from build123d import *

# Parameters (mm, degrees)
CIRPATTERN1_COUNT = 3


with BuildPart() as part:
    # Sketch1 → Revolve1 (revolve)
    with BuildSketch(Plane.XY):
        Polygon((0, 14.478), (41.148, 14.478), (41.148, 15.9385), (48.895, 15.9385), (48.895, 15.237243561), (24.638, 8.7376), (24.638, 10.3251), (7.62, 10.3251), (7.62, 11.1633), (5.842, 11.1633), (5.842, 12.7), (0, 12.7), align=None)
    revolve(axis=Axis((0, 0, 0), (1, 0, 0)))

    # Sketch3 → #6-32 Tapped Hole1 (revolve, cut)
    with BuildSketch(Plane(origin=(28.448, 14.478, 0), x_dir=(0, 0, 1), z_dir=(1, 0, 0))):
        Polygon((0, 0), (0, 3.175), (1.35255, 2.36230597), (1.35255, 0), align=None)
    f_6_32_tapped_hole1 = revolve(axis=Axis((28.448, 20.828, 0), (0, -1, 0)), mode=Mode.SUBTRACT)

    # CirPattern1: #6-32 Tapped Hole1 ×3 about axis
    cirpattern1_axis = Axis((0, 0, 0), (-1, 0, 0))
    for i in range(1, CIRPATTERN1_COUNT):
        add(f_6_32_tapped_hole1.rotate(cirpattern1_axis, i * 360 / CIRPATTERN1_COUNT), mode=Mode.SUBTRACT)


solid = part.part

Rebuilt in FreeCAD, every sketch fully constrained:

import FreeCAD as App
import Part
import Sketcher
from FreeCAD import Vector
Q = App.Units.Quantity

doc = App.newDocument("Part")
body = doc.addObject("PartDesign::Body", "Body")

# Sketch on XY plane
sketch1 = doc.addObject("Sketcher::SketchObject", "Sketch")
body.addObject(sketch1)
sketch1.AttachmentSupport = (doc.XY_Plane, [""])
sketch1.MapMode = "FlatFace"
sketch1.addGeometry([
    Part.LineSegment(Vector(41.1, 14.5, 0), Vector(0, 14.5, 0)),  # 0
    Part.LineSegment(Vector(0, 14.5, 0), Vector(0, 12.7, 0)),  # 1
    Part.LineSegment(Vector(0, 12.7, 0), Vector(5.8, 12.7, 0)),  # 2
    Part.LineSegment(Vector(5.8, 12.7, 0), Vector(5.8, 11.2, 0)),  # 3
    Part.LineSegment(Vector(5.8, 11.2, 0), Vector(7.6, 11.2, 0)),  # 4
    Part.LineSegment(Vector(7.6, 11.2, 0), Vector(7.6, 10.3, 0)),  # 5
    Part.LineSegment(Vector(7.6, 10.3, 0), Vector(24.6, 10.3, 0)),  # 6
    Part.LineSegment(Vector(24.6, 10.3, 0), Vector(24.6, 8.7, 0)),  # 7
    Part.LineSegment(Vector(24.6, 8.7, 0), Vector(48.9, 15.2, 0)),  # 8
    Part.LineSegment(Vector(48.9, 15.2, 0), Vector(48.9, 15.9, 0)),  # 9
    Part.LineSegment(Vector(48.9, 15.9, 0), Vector(41.1, 15.9, 0)),  # 10
    Part.LineSegment(Vector(41.1, 15.9, 0), Vector(41.1, 14.5, 0)),  # 11
], False)
sketch1.addConstraint([
    Sketcher.Constraint("Coincident", 0, 2, 1, 1),
    Sketcher.Constraint("Coincident", 1, 2, 2, 1),
    Sketcher.Constraint("Coincident", 2, 2, 3, 1),
    Sketcher.Constraint("Coincident", 3, 2, 4, 1),
    Sketcher.Constraint("Coincident", 4, 2, 5, 1),
    Sketcher.Constraint("Coincident", 5, 2, 6, 1),
    Sketcher.Constraint("Coincident", 6, 2, 7, 1),
    Sketcher.Constraint("Coincident", 7, 2, 8, 1),
    Sketcher.Constraint("Coincident", 8, 2, 9, 1),
    Sketcher.Constraint("Coincident", 9, 2, 10, 1),
    Sketcher.Constraint("Coincident", 10, 2, 11, 1),
    Sketcher.Constraint("Coincident", 11, 2, 0, 1),
    Sketcher.Constraint("Horizontal", 0),
    Sketcher.Constraint("Vertical", 1),
    Sketcher.Constraint("Horizontal", 2),
    Sketcher.Constraint("Vertical", 3),
    Sketcher.Constraint("Horizontal", 4),
    Sketcher.Constraint("Vertical", 5),
    Sketcher.Constraint("Horizontal", 6),
    Sketcher.Constraint("Vertical", 7),
    Sketcher.Constraint("Vertical", 9),
    Sketcher.Constraint("Horizontal", 10),
    Sketcher.Constraint("Vertical", 11),
    Sketcher.Constraint("PointOnObject", 0, 2, -2),
    Sketcher.Constraint("Equal", 4, 1),
    Sketcher.Constraint("Angle", 8, Q("15 deg")),
    Sketcher.Constraint("DistanceX", 0, 2, 0, 1, Q("1.62 in")),
    Sketcher.Constraint("DistanceX", 2, 1, 2, 2, Q("0.23 in")),
    Sketcher.Constraint("DistanceX", 4, 1, 4, 2, Q("0.07 in")),
    Sketcher.Constraint("DistanceX", 6, 1, 6, 2, Q("0.67 in")),
    Sketcher.Constraint("DistanceY", -1, 1, 1, 2, Q("0.5 in")),
    Sketcher.Constraint("DistanceX", 10, 2, 10, 1, Q("0.305 in")),
    Sketcher.Constraint("DistanceY", 5, 2, 5, 1, Q("0.033 in")),
    Sketcher.Constraint("DistanceY", 7, 2, 7, 1, Q("0.0625 in")),
    Sketcher.Constraint("DistanceY", 3, 2, 3, 1, Q("0.0605 in")),
    Sketcher.Constraint("DistanceY", 11, 2, 11, 1, Q("0.0575 in")),
])
revolution = doc.addObject("PartDesign::Revolution", "Revolution")
body.addObject(revolution)
revolution.Profile = sketch1
revolution.ReferenceAxis = (sketch1, ["H_Axis"])
revolution.Angle = 360

# Sketch on YZ plane
sketch2 = doc.addObject("Sketcher::SketchObject", "Sketch001")
body.addObject(sketch2)
sketch2.AttachmentSupport = (doc.YZ_Plane, [""])
sketch2.MapMode = "FlatFace"
sketch2.AttachmentOffset = App.Placement(Vector(0, 0, 1.12 * 25.4), App.Rotation())
sketch2.addGeometry([
    Part.LineSegment(Vector(11.3, 0, 0), Vector(14.5, 0, 0)),
    Part.LineSegment(Vector(14.5, 0, 0), Vector(14.5, 1.4, 0)),
    Part.LineSegment(Vector(14.5, 1.4, 0), Vector(12.1, 1.4, 0)),
    Part.LineSegment(Vector(12.1, 1.4, 0), Vector(11.3, 0, 0)),
], False)
sketch2.addConstraint([
    Sketcher.Constraint("Coincident", 0, 2, 1, 1),
    Sketcher.Constraint("Coincident", 1, 2, 2, 1),
    Sketcher.Constraint("Coincident", 2, 2, 3, 1),
    Sketcher.Constraint("Coincident", 3, 2, 0, 1),
    Sketcher.Constraint("Horizontal", 0),
    Sketcher.Constraint("Vertical", 1),
    Sketcher.Constraint("Horizontal", 2),
    Sketcher.Constraint("PointOnObject", 0, 2, -1),
    Sketcher.Constraint("Angle", 3, Q("-121 deg")),
    Sketcher.Constraint("DistanceX", 0, 1, 0, 2, Q("0.125 in")),
    Sketcher.Constraint("DistanceX", -1, 1, 0, 2, Q("0.57 in")),
    Sketcher.Constraint("DistanceY", 1, 1, 1, 2, Q("1.35255 mm")),
])
groove = doc.addObject("PartDesign::Groove", "Groove")
body.addObject(groove)
groove.Profile = sketch2
groove.ReferenceAxis = (sketch2, ["H_Axis"])
groove.Angle = 360
doc.recompute()

polarpattern = doc.addObject("PartDesign::PolarPattern", "PolarPattern")
body.addObject(polarpattern)
polarpattern.Originals = [groove]
polarpattern.Axis = (doc.X_Axis, [""])
polarpattern.Angle = 360
polarpattern.Occurrences = 3
body.Tip = polarpattern

doc.recompute()
